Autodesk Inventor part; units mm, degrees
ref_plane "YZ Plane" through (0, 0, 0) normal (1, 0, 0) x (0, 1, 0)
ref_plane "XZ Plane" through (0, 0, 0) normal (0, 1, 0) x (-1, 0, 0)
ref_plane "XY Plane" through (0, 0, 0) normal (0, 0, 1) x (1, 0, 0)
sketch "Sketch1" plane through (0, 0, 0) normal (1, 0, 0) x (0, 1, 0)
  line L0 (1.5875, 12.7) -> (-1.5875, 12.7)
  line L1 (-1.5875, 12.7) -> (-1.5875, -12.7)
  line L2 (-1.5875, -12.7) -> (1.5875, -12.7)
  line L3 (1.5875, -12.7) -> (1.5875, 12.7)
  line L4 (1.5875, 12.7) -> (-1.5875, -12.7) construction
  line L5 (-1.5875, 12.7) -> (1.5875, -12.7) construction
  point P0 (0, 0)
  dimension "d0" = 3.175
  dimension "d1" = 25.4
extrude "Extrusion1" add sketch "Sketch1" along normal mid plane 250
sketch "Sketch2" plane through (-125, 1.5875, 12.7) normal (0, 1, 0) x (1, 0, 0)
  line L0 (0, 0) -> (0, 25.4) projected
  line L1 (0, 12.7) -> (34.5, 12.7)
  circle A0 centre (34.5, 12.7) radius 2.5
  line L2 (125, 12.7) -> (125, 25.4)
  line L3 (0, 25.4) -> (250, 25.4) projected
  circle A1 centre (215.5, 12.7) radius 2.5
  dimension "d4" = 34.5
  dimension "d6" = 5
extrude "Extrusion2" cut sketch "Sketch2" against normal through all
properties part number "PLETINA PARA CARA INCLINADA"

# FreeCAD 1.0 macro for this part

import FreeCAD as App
import Part
import Sketcher

V = App.Vector

doc = App.newDocument("Part")
body = doc.addObject("PartDesign::Body", "Body")

# Sketch on YZ plane
sketch1 = body.newObject("Sketcher::SketchObject", "Sketch")
sketch1.AttachmentSupport = (doc.getObject("YZ_Plane"), [""])
sketch1.MapMode = "FlatFace"
sketch1.addGeometry([
    Part.LineSegment(V(1.6, -12.7, 0), V(1.6, 12.7, 0)),
    Part.LineSegment(V(1.6, 12.7, 0), V(-1.6, 12.7, 0)),
    Part.LineSegment(V(-1.6, 12.7, 0), V(-1.6, -12.7, 0)),
    Part.LineSegment(V(-1.6, -12.7, 0), V(1.6, -12.7, 0)),
], False)
sketch1.addConstraint([
    Sketcher.Constraint("Coincident", 0, 2, 1, 1),
    Sketcher.Constraint("Coincident", 1, 2, 2, 1),
    Sketcher.Constraint("Coincident", 2, 2, 3, 1),
    Sketcher.Constraint("Coincident", 3, 2, 0, 1),
    Sketcher.Constraint("Vertical", 0),
    Sketcher.Constraint("Horizontal", 1),
    Sketcher.Constraint("Vertical", 2),
    Sketcher.Constraint("Horizontal", 3),
    Sketcher.Constraint("Symmetric", 0, 2, 2, 2, -1, 1),
    Sketcher.Constraint("DistanceY", 0, 1, 0, 2, 25.4),
    Sketcher.Constraint("DistanceX", 1, 2, 1, 1, 3.175),
])
pad1 = body.newObject("PartDesign::Pad", "Pad")
pad1.Profile = sketch1
pad1.Length = 250
pad1.Midplane = True

# Sketch on XZ plane
sketch2 = body.newObject("Sketcher::SketchObject", "Sketch001")
sketch2.AttachmentSupport = (doc.getObject("XZ_Plane"), [""])
sketch2.MapMode = "FlatFace"
sketch2.AttachmentOffset = App.Placement(V(0, 0, -1.5875), App.Rotation())
sketch2.addGeometry([
    Part.Circle(V(-90.5, 0, 0), V(0, 0, 1), 2.5),
    Part.Circle(V(90.5, 0, 0), V(0, 0, 1), 2.5),
], False)
sketch2.addConstraint([
    Sketcher.Constraint("Equal", 0, 1),
    Sketcher.Constraint("Symmetric", 0, 3, 1, 3, -1, 1),
    Sketcher.Constraint("PointOnObject", 0, 3, -1),
    Sketcher.Constraint("Diameter", 0, 5.0),
    Sketcher.Constraint("DistanceX", 0, 3, 1, 3, 181.0),
])
pocket1 = body.newObject("PartDesign::Pocket", "Pocket")
pocket1.Profile = sketch2
pocket1.Type = "ThroughAll"
pocket1.Reversed = True

doc.recompute()
